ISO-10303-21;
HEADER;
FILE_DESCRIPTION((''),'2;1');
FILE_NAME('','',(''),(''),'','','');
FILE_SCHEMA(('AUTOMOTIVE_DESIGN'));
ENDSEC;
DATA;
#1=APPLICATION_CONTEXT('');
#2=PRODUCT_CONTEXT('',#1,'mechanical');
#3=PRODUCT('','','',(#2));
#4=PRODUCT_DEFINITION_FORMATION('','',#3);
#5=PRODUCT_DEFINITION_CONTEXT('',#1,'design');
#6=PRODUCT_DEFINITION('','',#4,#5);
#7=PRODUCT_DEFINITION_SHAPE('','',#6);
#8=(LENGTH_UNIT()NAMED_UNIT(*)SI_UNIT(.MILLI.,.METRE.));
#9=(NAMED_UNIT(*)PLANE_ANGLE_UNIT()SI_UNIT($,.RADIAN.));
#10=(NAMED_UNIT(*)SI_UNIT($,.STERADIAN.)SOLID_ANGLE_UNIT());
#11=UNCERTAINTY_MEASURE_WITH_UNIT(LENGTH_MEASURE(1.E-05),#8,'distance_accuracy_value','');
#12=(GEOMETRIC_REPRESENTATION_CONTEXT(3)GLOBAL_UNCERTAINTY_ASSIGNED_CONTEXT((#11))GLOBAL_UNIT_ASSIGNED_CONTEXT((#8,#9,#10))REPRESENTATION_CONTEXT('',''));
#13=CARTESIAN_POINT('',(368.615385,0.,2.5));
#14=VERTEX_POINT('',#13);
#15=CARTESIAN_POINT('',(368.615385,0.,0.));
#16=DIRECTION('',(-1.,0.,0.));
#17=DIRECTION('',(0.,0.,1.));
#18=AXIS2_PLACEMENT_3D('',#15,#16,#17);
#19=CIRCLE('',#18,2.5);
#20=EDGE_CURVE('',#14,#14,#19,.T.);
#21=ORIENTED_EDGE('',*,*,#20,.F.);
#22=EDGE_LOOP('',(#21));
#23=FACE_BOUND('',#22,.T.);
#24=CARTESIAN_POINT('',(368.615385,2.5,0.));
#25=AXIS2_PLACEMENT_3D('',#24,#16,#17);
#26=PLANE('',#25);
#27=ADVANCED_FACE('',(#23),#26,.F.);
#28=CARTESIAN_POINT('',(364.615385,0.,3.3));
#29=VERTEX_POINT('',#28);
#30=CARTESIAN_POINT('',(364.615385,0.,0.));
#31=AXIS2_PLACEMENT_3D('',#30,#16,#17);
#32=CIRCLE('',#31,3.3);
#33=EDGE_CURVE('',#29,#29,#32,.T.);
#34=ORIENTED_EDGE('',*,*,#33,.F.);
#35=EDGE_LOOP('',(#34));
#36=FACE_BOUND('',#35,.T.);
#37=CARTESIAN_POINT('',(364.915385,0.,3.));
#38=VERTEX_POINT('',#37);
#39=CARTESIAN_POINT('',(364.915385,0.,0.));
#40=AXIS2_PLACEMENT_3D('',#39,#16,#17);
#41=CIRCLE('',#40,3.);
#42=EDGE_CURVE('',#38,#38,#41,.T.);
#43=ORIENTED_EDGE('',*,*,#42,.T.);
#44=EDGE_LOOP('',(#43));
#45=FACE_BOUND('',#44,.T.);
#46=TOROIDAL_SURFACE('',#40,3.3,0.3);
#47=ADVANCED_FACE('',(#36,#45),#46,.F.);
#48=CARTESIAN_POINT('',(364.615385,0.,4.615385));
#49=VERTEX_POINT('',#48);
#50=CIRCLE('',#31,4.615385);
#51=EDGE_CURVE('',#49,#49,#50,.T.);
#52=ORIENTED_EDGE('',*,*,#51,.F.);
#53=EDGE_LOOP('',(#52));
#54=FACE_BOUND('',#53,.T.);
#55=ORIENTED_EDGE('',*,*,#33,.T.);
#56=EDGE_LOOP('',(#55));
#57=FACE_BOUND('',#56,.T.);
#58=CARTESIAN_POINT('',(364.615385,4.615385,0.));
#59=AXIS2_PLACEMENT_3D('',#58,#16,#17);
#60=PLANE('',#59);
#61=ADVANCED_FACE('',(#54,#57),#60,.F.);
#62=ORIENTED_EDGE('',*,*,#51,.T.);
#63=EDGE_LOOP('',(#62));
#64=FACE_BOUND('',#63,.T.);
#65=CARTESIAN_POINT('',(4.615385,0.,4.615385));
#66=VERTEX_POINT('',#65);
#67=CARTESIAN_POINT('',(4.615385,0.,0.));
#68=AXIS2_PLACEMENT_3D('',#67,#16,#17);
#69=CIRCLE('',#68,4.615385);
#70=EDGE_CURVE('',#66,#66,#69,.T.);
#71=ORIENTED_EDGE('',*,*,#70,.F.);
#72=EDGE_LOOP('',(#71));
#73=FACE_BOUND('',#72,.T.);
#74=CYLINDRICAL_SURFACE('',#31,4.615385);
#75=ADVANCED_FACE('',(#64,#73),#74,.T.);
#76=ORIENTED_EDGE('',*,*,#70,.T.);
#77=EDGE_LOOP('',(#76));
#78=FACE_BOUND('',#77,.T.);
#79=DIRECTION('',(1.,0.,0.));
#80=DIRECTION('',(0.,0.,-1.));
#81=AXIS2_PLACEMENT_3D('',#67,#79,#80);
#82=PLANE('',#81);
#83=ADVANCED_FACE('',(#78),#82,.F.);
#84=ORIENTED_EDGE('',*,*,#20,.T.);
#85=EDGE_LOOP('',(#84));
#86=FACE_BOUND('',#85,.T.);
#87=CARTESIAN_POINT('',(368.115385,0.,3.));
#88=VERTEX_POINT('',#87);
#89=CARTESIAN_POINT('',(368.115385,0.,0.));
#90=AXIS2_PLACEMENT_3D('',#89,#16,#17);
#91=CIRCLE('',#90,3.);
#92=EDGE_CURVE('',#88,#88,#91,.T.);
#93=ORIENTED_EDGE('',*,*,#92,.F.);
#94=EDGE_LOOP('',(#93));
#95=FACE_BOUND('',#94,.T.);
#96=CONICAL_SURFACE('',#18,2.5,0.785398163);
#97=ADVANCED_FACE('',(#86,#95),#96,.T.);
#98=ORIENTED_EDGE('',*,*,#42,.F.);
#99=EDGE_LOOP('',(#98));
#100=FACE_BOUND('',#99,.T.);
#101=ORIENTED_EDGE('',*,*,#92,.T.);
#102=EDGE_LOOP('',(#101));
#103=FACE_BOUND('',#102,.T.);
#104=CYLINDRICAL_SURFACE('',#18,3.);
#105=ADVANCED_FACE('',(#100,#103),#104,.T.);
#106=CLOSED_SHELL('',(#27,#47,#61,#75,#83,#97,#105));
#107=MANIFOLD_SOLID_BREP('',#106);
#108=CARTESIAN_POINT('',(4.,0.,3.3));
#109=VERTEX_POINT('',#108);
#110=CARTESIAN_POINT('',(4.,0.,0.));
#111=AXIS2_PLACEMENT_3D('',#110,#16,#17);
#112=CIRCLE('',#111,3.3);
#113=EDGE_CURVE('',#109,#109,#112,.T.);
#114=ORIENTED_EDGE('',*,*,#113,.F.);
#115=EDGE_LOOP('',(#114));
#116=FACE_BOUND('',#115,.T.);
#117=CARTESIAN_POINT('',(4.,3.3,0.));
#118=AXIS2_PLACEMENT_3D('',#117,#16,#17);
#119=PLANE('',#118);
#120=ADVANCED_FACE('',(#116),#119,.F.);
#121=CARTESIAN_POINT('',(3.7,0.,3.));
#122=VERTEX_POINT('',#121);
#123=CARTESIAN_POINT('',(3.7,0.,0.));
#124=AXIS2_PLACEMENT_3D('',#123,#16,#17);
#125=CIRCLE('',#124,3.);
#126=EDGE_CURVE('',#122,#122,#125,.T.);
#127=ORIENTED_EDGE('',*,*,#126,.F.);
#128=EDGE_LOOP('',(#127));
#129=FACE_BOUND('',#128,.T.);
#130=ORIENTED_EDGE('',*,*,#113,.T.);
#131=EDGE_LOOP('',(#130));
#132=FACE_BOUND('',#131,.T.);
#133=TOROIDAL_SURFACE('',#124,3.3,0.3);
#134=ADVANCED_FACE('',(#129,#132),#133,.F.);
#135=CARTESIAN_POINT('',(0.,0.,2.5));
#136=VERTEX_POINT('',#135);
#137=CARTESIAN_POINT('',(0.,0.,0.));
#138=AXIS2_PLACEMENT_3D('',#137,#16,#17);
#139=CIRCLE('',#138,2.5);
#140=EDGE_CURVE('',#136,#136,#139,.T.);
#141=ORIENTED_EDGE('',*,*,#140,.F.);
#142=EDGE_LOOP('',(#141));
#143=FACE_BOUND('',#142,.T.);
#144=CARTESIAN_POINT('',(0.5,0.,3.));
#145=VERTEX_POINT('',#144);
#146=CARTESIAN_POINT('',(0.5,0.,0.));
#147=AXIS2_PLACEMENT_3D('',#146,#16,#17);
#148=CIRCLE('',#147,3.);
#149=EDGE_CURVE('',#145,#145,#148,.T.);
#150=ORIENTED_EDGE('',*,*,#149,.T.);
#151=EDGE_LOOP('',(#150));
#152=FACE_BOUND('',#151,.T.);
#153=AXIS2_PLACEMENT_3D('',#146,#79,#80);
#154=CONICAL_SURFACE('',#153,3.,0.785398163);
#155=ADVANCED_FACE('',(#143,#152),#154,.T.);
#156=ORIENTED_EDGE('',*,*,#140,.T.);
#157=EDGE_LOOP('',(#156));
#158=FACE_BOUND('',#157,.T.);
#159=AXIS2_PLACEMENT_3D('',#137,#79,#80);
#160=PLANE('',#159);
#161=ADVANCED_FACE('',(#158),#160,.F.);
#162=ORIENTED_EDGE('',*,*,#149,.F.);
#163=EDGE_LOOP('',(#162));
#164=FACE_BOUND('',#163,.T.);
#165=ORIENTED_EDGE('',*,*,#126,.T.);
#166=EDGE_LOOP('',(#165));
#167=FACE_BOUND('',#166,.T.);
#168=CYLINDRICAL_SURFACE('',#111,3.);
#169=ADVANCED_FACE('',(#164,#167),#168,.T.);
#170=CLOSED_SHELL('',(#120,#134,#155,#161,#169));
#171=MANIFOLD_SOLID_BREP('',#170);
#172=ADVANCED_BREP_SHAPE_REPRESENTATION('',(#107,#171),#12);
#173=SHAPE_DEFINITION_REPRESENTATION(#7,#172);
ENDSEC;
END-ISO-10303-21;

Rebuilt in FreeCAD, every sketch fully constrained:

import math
import FreeCAD as App
import Part
import Sketcher
Q = App.Units.Quantity


def add_polygon(sketch, points):
    """Adds a closed chain of lines whose ends are joined by coincident constraints."""
    first, n = sketch.GeometryCount, len(points)
    for a, b in zip(points, points[1:] + points[:1]):
        sketch.addGeometry(Part.LineSegment(App.Vector(*a, 0), App.Vector(*b, 0)), False)
    for i in range(n):
        sketch.addConstraint(Sketcher.Constraint("Coincident", first + i, 2, first + (i + 1) % n, 1))

doc = App.newDocument("Part")
body = doc.addObject("PartDesign::Body", "Body")

# Sketch on XY plane
sketch1 = body.newObject("Sketcher::SketchObject", "Sketch")
sketch1.AttachmentSupport = (doc.getObject("XY_Plane"), [""])
sketch1.MapMode = "FlatFace"
add_polygon(sketch1, [(4.615385, 4.615385), (4.615385, 0), (364.615385, 0), (364.615385, 4.615385)])  # lines 0-3
sketch1.addConstraint([
    Sketcher.Constraint("Vertical", 0),
    Sketcher.Constraint("Horizontal", 1),
    Sketcher.Constraint("Vertical", 2),
    Sketcher.Constraint("Horizontal", 3),
    Sketcher.Constraint("PointOnObject", 0, 2, -1),
    Sketcher.Constraint("DistanceX", 1, 1, 1, 2, 360.0),
    Sketcher.Constraint("DistanceY", 0, 2, 0, 1, 4.615385),
    Sketcher.Constraint("DistanceX", -1, 1, 0, 2, 4.615385),
])
revolution = body.newObject("PartDesign::Revolution", "Revolution")
revolution.Profile = sketch1
revolution.ReferenceAxis = (sketch1, ["H_Axis"])
revolution.Angle = 360

# Sketch on XY plane
sketch2 = body.newObject("Sketcher::SketchObject", "Sketch001")
sketch2.AttachmentSupport = (doc.getObject("XY_Plane"), [""])
sketch2.MapMode = "FlatFace"
sketch2.addGeometry([
    Part.LineSegment(App.Vector(364.615385, 3.3, 0), App.Vector(364.615385, 0, 0)),  # 0
    Part.LineSegment(App.Vector(364.615385, 0, 0), App.Vector(368.615385, 0, 0)),  # 1
    Part.LineSegment(App.Vector(368.615385, 0, 0), App.Vector(368.615385, 2.5, 0)),  # 2
    Part.LineSegment(App.Vector(368.615385, 2.5, 0), App.Vector(368.115385, 3, 0)),  # 3
    Part.LineSegment(App.Vector(368.115385, 3, 0), App.Vector(364.915385, 3, 0)),  # 4
    Part.ArcOfCircle(Part.Circle(App.Vector(364.915385, 3.3, 0), App.Vector(0, 0, 1), 0.3), math.radians(-180), math.radians(-90)),  # 5
], False)
sketch2.addConstraint([
    Sketcher.Constraint("Coincident", 0, 2, 1, 1),
    Sketcher.Constraint("Coincident", 1, 2, 2, 1),
    Sketcher.Constraint("Coincident", 2, 2, 3, 1),
    Sketcher.Constraint("Coincident", 3, 2, 4, 1),
    Sketcher.Constraint("Tangent", 4, 2, 5, 2),
    Sketcher.Constraint("Tangent", 5, 1, 0, 1),
    Sketcher.Constraint("Vertical", 0),
    Sketcher.Constraint("Horizontal", 1),
    Sketcher.Constraint("Vertical", 2),
    Sketcher.Constraint("Horizontal", 4),
    Sketcher.Constraint("PointOnObject", 0, 2, -1),
    Sketcher.Constraint("Radius", 5, 0.3),
    Sketcher.Constraint("DistanceX", 1, 1, 1, 2, 4.0),
    Sketcher.Constraint("Angle", 3, Q("135 deg")),
    Sketcher.Constraint("DistanceX", 4, 2, 4, 1, 3.2),
    Sketcher.Constraint("DistanceY", 0, 2, 0, 1, 3.3),
    Sketcher.Constraint("DistanceX", -1, 1, 5, 3, 364.915385),
])
revolution2 = body.newObject("PartDesign::Revolution", "Revolution001")
revolution2.Profile = sketch2
revolution2.ReferenceAxis = (sketch2, ["H_Axis"])
revolution2.Angle = 360
body2 = doc.addObject("PartDesign::Body", "Body001")

# Sketch on XY plane
sketch3 = body2.newObject("Sketcher::SketchObject", "Sketch002")
sketch3.AttachmentSupport = (doc.getObject("XY_Plane001"), [""])
sketch3.MapMode = "FlatFace"
sketch3.addGeometry([
    Part.LineSegment(App.Vector(0, 2.5, 0), App.Vector(0, 0, 0)),  # 0
    Part.LineSegment(App.Vector(0, 0, 0), App.Vector(4, 0, 0)),  # 1
    Part.LineSegment(App.Vector(4, 0, 0), App.Vector(4, 3.3, 0)),  # 2
    Part.ArcOfCircle(Part.Circle(App.Vector(3.7, 3.3, 0), App.Vector(0, 0, 1), 0.3), math.radians(-90), math.radians(0)),  # 3
    Part.LineSegment(App.Vector(3.7, 3, 0), App.Vector(0.5, 3, 0)),  # 4
    Part.LineSegment(App.Vector(0.5, 3, 0), App.Vector(0, 2.5, 0)),  # 5
], False)
sketch3.addConstraint([
    Sketcher.Constraint("Coincident", 0, 2, 1, 1),
    Sketcher.Constraint("Coincident", 1, 2, 2, 1),
    Sketcher.Constraint("Tangent", 2, 2, 3, 2),
    Sketcher.Constraint("Tangent", 3, 1, 4, 1),
    Sketcher.Constraint("Coincident", 4, 2, 5, 1),
    Sketcher.Constraint("Coincident", 5, 2, 0, 1),
    Sketcher.Constraint("Vertical", 0),
    Sketcher.Constraint("Horizontal", 1),
    Sketcher.Constraint("Vertical", 2),
    Sketcher.Constraint("Horizontal", 4),
    Sketcher.Constraint("Coincident", 0, 2, -1, 1),
    Sketcher.Constraint("Radius", 3, 0.3),
    Sketcher.Constraint("DistanceX", 1, 1, 1, 2, 4.0),
    Sketcher.Constraint("Angle", 5, Q("-135 deg")),
    Sketcher.Constraint("DistanceX", 4, 2, 4, 1, 3.2),
    Sketcher.Constraint("DistanceY", 0, 2, 0, 1, 2.5),
])
revolution3 = body2.newObject("PartDesign::Revolution", "Revolution002")
revolution3.Profile = sketch3
revolution3.ReferenceAxis = (sketch3, ["H_Axis"])
revolution3.Angle = 360

doc.recompute()
